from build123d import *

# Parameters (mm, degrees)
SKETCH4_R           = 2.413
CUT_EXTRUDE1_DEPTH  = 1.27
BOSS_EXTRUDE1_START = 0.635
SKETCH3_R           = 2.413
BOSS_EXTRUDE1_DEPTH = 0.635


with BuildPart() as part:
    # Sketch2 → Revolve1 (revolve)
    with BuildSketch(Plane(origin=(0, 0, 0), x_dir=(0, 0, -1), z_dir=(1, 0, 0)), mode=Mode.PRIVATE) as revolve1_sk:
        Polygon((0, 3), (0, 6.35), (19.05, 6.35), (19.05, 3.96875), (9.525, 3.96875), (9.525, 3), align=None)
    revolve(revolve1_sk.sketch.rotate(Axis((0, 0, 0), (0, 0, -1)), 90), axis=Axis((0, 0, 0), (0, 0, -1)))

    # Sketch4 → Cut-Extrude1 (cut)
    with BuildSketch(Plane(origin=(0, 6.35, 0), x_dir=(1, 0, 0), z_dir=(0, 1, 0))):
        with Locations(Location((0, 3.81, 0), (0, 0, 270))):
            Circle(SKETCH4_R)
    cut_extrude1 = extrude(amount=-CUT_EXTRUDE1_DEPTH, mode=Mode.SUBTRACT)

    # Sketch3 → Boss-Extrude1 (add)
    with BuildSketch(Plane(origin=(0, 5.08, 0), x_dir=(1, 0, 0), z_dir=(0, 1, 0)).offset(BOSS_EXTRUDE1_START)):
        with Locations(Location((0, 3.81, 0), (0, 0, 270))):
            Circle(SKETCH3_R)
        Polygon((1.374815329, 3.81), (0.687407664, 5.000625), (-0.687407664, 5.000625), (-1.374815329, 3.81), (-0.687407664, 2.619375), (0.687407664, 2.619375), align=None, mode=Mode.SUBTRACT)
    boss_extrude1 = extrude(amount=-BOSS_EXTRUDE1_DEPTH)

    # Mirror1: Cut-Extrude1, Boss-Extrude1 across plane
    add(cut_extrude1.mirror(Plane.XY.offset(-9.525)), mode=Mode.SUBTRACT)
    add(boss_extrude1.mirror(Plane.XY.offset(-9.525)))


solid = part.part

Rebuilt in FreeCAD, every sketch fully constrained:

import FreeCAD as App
import Part
import Sketcher
from FreeCAD import Vector
Q = App.Units.Quantity


def add_polygon(sketch, points):
    """Adds a closed chain of lines whose ends are joined by coincident constraints."""
    first, n = sketch.GeometryCount, len(points)
    for a, b in zip(points, points[1:] + points[:1]):
        sketch.addGeometry(Part.LineSegment(App.Vector(*a, 0), App.Vector(*b, 0)), False)
    for i in range(n):
        sketch.addConstraint(Sketcher.Constraint("Coincident", first + i, 2, first + (i + 1) % n, 1))

doc = App.newDocument("Part")
body = doc.addObject("PartDesign::Body", "Body")

sketch1 = body.newObject("Sketcher::SketchObject", "Sketch")
sketch1.AttachmentSupport = (doc.getObject("YZ_Plane"), [""])
sketch1.MapMode = "FlatFace"
add_polygon(sketch1, [(6.3, 0), (3, 0), (3, -9.5), (4, -9.5), (4, -19.1), (6.3, -19.1)])
sketch1.addConstraint([
    Sketcher.Constraint("Horizontal", 0),
    Sketcher.Constraint("Vertical", 1),
    Sketcher.Constraint("Horizontal", 2),
    Sketcher.Constraint("Vertical", 3),
    Sketcher.Constraint("Horizontal", 4),
    Sketcher.Constraint("Vertical", 5),
    Sketcher.Constraint("PointOnObject", 0, 2, -1),
    Sketcher.Constraint("Equal", 1, 3),
    Sketcher.Constraint("DistanceY", 5, 1, 5, 2, Q("0.75 in")),
    Sketcher.Constraint("DistanceX", 4, 1, 4, 2, Q("0.09375 in")),
    Sketcher.Constraint("DistanceX", -1, 1, 4, 2, Q("0.25 in")),
    Sketcher.Constraint("DistanceX", 0, 2, 0, 1, 3.35),
])
revolution = body.newObject("PartDesign::Revolution", "Revolution")
revolution.Profile = sketch1
revolution.ReferenceAxis = (sketch1, ["V_Axis"])
revolution.Angle = 360

sketch2 = body.newObject("Sketcher::SketchObject", "Sketch001")
sketch2.AttachmentSupport = (doc.getObject("XZ_Plane"), [""])
sketch2.MapMode = "FlatFace"
sketch2.AttachmentOffset = App.Placement(Vector(0, 0, -0.25 * 25.4), App.Rotation())
sketch2.addGeometry(Part.Circle(Vector(0, -3.8, 0), Vector(0, 0, 1), 2.4), False)
sketch2.addConstraint([
    Sketcher.Constraint("PointOnObject", 0, 3, -2),
    Sketcher.Constraint("Diameter", 0, Q("0.19 in")),
    Sketcher.Constraint("DistanceY", 0, 3, -1, 1, Q("0.15 in")),
])
pocket1 = body.newObject("PartDesign::Pocket", "Pocket")
pocket1.Profile = sketch2
pocket1.Length = Q("0.05 in")
pocket1.Reversed = True

sketch3 = body.newObject("Sketcher::SketchObject", "Sketch002")
sketch3.AttachmentSupport = (doc.getObject("XZ_Plane"), [""])
sketch3.MapMode = "FlatFace"
sketch3.AttachmentOffset = App.Placement(Vector(0, 0, -0.225 * 25.4), App.Rotation())
sketch3.addGeometry(Part.Circle(Vector(0, -3.8, 0), Vector(0, 0, 1), 2.4), False)
add_polygon(sketch3, [(0.7, -5), (1.4, -3.8), (0.7, -2.6), (-0.7, -2.6), (-1.4, -3.8), (-0.7, -5)])
sketch3.addConstraint([
    Sketcher.Constraint("Horizontal", 3),
    Sketcher.Constraint("Horizontal", 6),
    Sketcher.Constraint("Symmetric", 1, 2, 4, 2, -2),
    Sketcher.Constraint("PointOnObject", 0, 3, -2),
    Sketcher.Constraint("Parallel", 1, 4),
    Sketcher.Constraint("Parallel", 2, 5),
    Sketcher.Constraint("Horizontal", 0, 3, 1, 2),
    Sketcher.Constraint("Vertical", 3, 2, 5, 2),
    Sketcher.Constraint("Vertical", 2, 2, 6, 2),
    Sketcher.Constraint("Diameter", 0, Q("0.19 in")),
    Sketcher.Constraint("Angle", 1, Q("60 deg")),
    Sketcher.Constraint("DistanceY", 0, 3, -1, 1, Q("0.15 in")),
    Sketcher.Constraint("DistanceY", 0, 3, 2, 2, Q("0.046875 in")),
    Sketcher.Constraint("DistanceX", 3, 2, 3, 1, 1.374815),
])
pad1 = body.newObject("PartDesign::Pad", "Pad")
pad1.Profile = sketch3
pad1.Length = Q("0.025 in")
doc.recompute()

datumplane = body.newObject("PartDesign::Plane", "DatumPlane")
datumplane.AttachmentSupport = (doc.getObject("XY_Plane"), [""])
datumplane.MapMode = "FlatFace"
datumplane.AttachmentOffset = App.Placement(Vector(0, 0, -0.375 * 25.4), App.Rotation())
mirrored = body.newObject("PartDesign::Mirrored", "Mirrored")
mirrored.Originals = [pocket1, pad1]
mirrored.MirrorPlane = (datumplane, [""])
body.Tip = mirrored

doc.recompute()
